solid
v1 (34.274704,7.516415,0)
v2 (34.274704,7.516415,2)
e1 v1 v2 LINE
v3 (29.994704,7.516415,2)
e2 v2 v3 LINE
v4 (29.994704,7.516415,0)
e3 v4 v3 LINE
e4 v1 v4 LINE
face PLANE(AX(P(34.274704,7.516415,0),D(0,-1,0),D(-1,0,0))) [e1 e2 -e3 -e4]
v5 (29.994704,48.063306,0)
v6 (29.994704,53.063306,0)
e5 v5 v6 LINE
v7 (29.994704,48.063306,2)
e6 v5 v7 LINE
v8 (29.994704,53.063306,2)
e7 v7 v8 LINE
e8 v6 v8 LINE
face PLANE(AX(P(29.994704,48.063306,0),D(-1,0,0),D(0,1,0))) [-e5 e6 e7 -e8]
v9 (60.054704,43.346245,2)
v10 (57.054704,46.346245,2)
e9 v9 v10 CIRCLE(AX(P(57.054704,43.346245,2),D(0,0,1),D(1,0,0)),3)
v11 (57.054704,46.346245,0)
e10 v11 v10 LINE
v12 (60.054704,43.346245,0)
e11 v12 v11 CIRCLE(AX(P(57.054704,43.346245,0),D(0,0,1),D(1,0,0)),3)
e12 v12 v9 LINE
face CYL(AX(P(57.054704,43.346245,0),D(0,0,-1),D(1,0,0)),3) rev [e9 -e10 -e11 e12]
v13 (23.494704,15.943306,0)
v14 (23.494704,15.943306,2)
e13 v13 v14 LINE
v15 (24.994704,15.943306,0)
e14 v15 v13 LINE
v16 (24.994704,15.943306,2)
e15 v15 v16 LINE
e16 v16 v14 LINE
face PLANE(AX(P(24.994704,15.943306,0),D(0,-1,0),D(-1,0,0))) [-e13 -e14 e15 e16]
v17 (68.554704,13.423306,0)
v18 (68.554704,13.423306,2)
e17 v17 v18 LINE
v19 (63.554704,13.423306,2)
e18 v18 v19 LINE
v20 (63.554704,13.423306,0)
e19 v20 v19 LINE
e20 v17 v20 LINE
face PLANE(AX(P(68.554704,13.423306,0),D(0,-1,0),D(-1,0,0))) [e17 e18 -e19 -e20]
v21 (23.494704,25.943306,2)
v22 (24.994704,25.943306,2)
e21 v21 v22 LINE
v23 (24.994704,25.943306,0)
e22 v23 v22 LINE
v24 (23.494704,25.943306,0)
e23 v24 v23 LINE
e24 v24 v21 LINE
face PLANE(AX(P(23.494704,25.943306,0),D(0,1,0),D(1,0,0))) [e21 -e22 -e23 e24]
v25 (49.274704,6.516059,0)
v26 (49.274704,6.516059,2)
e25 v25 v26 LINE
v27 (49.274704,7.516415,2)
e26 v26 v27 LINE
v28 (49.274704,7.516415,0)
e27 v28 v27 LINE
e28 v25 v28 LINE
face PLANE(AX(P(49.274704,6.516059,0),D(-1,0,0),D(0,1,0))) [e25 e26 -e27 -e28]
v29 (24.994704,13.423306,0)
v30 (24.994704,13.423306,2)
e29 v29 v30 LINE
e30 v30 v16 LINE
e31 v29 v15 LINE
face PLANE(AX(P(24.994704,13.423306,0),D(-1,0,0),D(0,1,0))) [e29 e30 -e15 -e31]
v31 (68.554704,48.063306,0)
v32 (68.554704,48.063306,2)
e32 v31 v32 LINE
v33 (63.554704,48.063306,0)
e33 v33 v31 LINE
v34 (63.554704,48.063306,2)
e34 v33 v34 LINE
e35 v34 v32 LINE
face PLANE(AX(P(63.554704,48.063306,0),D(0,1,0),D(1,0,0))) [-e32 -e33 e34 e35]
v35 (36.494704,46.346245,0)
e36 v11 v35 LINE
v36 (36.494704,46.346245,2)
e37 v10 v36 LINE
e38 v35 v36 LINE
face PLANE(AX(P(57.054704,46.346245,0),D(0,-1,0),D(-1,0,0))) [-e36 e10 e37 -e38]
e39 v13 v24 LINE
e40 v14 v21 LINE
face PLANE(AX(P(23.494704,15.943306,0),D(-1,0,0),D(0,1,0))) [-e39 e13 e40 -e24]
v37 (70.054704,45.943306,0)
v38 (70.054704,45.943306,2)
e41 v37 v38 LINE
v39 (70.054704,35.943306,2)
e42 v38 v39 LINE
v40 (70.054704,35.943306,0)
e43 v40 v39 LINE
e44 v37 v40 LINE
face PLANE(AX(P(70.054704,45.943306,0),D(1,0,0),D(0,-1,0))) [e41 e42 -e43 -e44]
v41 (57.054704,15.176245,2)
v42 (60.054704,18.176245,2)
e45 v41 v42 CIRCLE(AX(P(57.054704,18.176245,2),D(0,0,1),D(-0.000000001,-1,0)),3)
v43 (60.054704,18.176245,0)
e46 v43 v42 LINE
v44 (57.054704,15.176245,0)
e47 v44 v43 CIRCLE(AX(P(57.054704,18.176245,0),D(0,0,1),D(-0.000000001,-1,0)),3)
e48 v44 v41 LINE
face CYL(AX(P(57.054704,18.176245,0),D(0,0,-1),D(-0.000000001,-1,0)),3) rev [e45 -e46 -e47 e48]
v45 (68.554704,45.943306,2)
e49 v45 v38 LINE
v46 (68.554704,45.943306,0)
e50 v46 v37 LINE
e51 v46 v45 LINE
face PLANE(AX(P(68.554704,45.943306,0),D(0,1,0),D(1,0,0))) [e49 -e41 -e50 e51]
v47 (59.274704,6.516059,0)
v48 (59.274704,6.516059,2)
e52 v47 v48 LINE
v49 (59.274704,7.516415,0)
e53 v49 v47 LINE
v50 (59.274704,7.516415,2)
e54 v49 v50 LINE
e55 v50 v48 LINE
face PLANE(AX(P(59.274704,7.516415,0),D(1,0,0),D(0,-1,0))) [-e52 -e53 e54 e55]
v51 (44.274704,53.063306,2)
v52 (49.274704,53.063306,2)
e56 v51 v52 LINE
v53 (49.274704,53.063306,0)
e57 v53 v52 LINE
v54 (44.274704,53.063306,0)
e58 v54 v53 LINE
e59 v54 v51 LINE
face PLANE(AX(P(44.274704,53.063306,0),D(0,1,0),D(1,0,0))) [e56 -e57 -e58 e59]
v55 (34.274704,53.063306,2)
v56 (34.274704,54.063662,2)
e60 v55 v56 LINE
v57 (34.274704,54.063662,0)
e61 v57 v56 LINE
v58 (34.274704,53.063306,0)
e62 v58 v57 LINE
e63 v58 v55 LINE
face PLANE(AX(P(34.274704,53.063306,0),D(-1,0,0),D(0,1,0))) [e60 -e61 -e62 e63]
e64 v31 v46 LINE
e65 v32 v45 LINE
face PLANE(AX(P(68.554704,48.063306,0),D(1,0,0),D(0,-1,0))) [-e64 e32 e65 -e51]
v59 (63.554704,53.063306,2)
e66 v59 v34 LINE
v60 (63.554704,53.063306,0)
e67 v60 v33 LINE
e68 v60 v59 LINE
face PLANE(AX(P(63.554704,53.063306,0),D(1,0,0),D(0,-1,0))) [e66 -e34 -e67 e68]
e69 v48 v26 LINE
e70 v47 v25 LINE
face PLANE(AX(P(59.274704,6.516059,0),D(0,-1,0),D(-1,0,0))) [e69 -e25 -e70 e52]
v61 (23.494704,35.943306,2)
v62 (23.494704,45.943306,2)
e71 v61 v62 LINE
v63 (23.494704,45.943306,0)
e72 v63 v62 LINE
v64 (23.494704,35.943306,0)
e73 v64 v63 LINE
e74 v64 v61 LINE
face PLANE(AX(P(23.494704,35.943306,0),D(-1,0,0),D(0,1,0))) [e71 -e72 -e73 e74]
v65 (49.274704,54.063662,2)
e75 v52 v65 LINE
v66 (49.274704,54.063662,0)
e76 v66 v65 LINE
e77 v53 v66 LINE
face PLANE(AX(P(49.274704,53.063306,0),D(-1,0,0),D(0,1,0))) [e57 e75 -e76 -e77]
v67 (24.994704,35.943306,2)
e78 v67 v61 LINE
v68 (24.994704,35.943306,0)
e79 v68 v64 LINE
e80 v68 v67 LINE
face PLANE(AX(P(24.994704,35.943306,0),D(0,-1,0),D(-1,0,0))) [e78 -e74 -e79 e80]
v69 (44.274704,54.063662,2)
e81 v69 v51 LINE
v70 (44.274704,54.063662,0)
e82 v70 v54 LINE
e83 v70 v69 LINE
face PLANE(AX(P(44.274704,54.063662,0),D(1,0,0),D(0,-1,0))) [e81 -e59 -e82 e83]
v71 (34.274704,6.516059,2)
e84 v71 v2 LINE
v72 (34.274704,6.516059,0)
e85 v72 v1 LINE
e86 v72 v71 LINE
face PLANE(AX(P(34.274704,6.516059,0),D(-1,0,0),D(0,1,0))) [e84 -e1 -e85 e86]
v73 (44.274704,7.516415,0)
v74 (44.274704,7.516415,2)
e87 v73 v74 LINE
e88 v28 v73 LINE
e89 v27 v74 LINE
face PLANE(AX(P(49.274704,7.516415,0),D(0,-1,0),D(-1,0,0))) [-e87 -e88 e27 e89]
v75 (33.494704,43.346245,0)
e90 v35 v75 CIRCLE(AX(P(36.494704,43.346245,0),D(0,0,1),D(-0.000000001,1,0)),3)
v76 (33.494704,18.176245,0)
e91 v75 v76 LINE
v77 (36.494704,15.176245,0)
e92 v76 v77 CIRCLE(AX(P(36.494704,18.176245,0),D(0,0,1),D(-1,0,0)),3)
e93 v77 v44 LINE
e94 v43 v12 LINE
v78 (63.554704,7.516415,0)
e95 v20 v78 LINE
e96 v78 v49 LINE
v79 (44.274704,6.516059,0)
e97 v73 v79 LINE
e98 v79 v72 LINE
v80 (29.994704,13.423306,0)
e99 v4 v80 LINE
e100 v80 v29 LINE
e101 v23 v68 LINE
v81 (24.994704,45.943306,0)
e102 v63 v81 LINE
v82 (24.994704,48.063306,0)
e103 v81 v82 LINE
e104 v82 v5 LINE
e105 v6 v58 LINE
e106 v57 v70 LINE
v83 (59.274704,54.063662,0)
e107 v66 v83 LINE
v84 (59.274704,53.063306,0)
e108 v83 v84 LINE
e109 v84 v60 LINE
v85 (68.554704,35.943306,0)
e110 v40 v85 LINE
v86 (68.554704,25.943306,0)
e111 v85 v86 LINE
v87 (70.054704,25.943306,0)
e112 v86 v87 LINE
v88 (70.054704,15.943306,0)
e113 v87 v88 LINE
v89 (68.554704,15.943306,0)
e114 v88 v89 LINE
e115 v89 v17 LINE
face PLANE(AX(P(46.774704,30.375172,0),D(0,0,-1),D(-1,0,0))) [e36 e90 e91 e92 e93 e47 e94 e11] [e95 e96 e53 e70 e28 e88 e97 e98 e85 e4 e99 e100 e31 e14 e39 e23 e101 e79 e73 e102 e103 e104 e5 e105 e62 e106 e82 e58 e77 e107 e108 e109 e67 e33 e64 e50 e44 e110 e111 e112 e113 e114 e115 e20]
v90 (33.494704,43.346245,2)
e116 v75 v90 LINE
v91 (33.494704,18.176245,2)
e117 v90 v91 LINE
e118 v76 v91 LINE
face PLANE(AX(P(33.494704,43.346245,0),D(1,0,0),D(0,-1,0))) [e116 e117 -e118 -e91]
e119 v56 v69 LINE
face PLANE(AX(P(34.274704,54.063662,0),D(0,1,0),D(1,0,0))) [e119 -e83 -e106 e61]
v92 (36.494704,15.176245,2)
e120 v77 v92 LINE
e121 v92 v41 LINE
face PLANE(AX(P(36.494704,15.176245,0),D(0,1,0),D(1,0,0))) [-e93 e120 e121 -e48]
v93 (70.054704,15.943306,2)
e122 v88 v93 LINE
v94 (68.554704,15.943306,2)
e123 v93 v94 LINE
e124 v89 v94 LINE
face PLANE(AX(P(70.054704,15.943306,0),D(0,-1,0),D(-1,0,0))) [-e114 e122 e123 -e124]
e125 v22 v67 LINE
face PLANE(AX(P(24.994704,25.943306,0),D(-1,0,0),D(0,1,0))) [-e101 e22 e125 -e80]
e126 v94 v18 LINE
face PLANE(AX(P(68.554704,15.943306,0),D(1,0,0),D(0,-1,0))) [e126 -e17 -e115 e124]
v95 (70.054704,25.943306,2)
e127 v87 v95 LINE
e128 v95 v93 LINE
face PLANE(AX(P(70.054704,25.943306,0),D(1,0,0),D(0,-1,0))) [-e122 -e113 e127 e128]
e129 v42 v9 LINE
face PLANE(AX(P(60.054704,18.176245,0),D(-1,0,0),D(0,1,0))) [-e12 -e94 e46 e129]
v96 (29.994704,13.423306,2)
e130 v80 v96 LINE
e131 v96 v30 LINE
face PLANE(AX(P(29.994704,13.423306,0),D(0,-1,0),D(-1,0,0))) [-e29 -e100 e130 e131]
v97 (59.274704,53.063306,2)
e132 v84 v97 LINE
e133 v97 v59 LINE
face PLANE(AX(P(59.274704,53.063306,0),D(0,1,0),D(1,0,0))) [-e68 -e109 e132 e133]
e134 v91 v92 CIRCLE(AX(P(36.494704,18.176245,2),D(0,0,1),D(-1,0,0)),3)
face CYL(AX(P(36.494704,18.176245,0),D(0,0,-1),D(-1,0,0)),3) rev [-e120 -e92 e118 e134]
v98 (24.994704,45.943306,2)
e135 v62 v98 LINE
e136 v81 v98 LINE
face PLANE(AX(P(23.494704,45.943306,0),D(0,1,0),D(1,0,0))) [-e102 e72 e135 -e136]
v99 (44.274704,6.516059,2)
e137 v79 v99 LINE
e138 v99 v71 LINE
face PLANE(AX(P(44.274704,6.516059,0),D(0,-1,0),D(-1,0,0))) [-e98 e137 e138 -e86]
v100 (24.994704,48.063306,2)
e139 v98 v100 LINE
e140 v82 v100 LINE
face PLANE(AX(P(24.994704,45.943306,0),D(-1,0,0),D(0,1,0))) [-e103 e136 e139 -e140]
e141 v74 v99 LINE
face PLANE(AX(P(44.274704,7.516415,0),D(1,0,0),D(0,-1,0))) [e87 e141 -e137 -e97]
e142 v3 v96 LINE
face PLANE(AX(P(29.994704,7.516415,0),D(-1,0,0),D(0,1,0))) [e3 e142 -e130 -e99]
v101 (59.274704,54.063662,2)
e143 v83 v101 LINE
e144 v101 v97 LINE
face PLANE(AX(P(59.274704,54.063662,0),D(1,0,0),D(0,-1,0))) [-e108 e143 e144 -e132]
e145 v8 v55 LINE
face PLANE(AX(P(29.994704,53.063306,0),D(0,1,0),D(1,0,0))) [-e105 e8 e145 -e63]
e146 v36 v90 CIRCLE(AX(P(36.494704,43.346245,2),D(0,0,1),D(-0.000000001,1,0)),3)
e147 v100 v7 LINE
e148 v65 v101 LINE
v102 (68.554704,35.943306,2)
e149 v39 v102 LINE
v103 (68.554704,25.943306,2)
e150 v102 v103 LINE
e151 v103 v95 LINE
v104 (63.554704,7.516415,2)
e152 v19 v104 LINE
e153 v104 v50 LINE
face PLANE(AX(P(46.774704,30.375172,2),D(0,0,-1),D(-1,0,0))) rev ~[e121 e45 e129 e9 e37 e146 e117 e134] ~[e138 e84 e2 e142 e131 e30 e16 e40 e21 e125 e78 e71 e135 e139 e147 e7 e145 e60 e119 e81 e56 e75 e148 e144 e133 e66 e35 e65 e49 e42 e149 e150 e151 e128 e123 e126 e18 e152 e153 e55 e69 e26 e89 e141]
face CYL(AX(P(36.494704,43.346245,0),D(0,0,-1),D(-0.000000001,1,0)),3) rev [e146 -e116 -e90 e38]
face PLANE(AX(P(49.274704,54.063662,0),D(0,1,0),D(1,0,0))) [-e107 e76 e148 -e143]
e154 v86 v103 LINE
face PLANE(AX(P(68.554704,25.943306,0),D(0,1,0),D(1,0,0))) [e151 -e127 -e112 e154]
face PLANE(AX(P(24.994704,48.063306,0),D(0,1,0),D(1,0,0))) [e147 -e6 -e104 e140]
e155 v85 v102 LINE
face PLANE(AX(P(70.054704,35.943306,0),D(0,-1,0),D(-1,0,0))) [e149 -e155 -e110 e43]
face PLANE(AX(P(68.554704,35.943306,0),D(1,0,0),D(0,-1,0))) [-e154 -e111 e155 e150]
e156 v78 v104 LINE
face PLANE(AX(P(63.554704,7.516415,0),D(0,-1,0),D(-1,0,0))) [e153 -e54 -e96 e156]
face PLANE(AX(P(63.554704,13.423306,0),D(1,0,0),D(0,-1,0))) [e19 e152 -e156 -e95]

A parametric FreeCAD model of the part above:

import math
import FreeCAD as App
import Part
import Sketcher

V = App.Vector
Q = App.Units.Quantity

doc = App.newDocument("Part")
body = doc.addObject("PartDesign::Body", "Body")

# Sketch on XY plane
sketch1 = doc.addObject("Sketcher::SketchObject", "Sketch")
body.addObject(sketch1)
sketch1.AttachmentSupport = (doc.XY_Plane, [""])
sketch1.MapMode = "FlatFace"
sketch1.addGeometry([
    Part.LineSegment(V(34.274704, 53.063306, 0), V(29.994704, 53.063306, 0)),  # 0
    Part.LineSegment(V(29.994704, 53.063306, 0), V(29.994704, 48.063306, 0)),  # 1
    Part.LineSegment(V(29.994704, 48.063306, 0), V(24.994704, 48.063306, 0)),  # 2
    Part.LineSegment(V(24.994704, 48.063306, 0), V(24.994704, 45.943306, 0)),  # 3
    Part.LineSegment(V(24.994704, 45.943306, 0), V(23.494704, 45.943306, 0)),  # 4
    Part.LineSegment(V(23.494704, 45.943306, 0), V(23.494704, 35.943306, 0)),  # 5
    Part.LineSegment(V(23.494704, 35.943306, 0), V(24.994704, 35.943306, 0)),  # 6
    Part.LineSegment(V(24.994704, 35.943306, 0), V(24.994704, 25.943306, 0)),  # 7
    Part.LineSegment(V(24.994704, 25.943306, 0), V(23.494704, 25.943306, 0)),  # 8
    Part.LineSegment(V(23.494704, 25.943306, 0), V(23.494704, 15.943306, 0)),  # 9
    Part.LineSegment(V(23.494704, 15.943306, 0), V(24.994704, 15.943306, 0)),  # 10
    Part.LineSegment(V(24.994704, 15.943306, 0), V(24.994704, 13.423306, 0)),  # 11
    Part.LineSegment(V(24.994704, 13.423306, 0), V(29.994704, 13.423306, 0)),  # 12
    Part.LineSegment(V(29.994704, 13.423306, 0), V(29.994704, 7.516415, 0)),  # 13
    Part.LineSegment(V(29.994704, 7.516415, 0), V(34.274704, 7.516415, 0)),  # 14
    Part.LineSegment(V(34.274704, 7.516415, 0), V(34.274704, 6.516059, 0)),  # 15
    Part.LineSegment(V(34.274704, 6.516059, 0), V(44.274704, 6.516059, 0)),  # 16
    Part.LineSegment(V(44.274704, 6.516059, 0), V(44.274704, 7.516415, 0)),  # 17
    Part.LineSegment(V(44.274704, 7.516415, 0), V(49.274704, 7.516415, 0)),  # 18
    Part.LineSegment(V(49.274704, 7.516415, 0), V(49.274704, 6.516059, 0)),  # 19
    Part.LineSegment(V(49.274704, 6.516059, 0), V(59.274704, 6.516059, 0)),  # 20
    Part.LineSegment(V(59.274704, 6.516059, 0), V(59.274704, 7.516415, 0)),  # 21
    Part.LineSegment(V(59.274704, 7.516415, 0), V(63.554704, 7.516415, 0)),  # 22
    Part.LineSegment(V(63.554704, 7.516415, 0), V(63.554704, 13.423306, 0)),  # 23
    Part.LineSegment(V(63.554704, 13.423306, 0), V(68.554704, 13.423306, 0)),  # 24
    Part.LineSegment(V(68.554704, 13.423306, 0), V(68.554704, 15.943306, 0)),  # 25
    Part.LineSegment(V(68.554704, 15.943306, 0), V(70.054704, 15.943306, 0)),  # 26
    Part.LineSegment(V(70.054704, 15.943306, 0), V(70.054704, 25.943306, 0)),  # 27
    Part.LineSegment(V(70.054704, 25.943306, 0), V(68.554704, 25.943306, 0)),  # 28
    Part.LineSegment(V(68.554704, 25.943306, 0), V(68.554704, 35.943306, 0)),  # 29
    Part.LineSegment(V(68.554704, 35.943306, 0), V(70.054704, 35.943306, 0)),  # 30
    Part.LineSegment(V(70.054704, 35.943306, 0), V(70.054704, 45.943306, 0)),  # 31
    Part.LineSegment(V(70.054704, 45.943306, 0), V(68.554704, 45.943306, 0)),  # 32
    Part.LineSegment(V(68.554704, 45.943306, 0), V(68.554704, 48.063306, 0)),  # 33
    Part.LineSegment(V(68.554704, 48.063306, 0), V(63.554704, 48.063306, 0)),  # 34
    Part.LineSegment(V(63.554704, 48.063306, 0), V(63.554704, 53.063306, 0)),  # 35
    Part.LineSegment(V(63.554704, 53.063306, 0), V(59.274704, 53.063306, 0)),  # 36
    Part.LineSegment(V(59.274704, 53.063306, 0), V(59.274704, 54.063662, 0)),  # 37
    Part.LineSegment(V(59.274704, 54.063662, 0), V(49.274704, 54.063662, 0)),  # 38
    Part.LineSegment(V(49.274704, 54.063662, 0), V(49.274704, 53.063306, 0)),  # 39
    Part.LineSegment(V(49.274704, 53.063306, 0), V(44.274704, 53.063306, 0)),  # 40
    Part.LineSegment(V(44.274704, 53.063306, 0), V(44.274704, 54.063662, 0)),  # 41
    Part.LineSegment(V(44.274704, 54.063662, 0), V(34.274704, 54.063662, 0)),  # 42
    Part.LineSegment(V(34.274704, 54.063662, 0), V(34.274704, 53.063306, 0)),  # 43
    Part.ArcOfCircle(Part.Circle(V(57.054704, 43.346245, 0), V(0, 0, 1), 3), math.radians(0), math.radians(90)),  # 44
    Part.LineSegment(V(60.054704, 43.346245, 0), V(60.054704, 18.176245, 0)),  # 45
    Part.ArcOfCircle(Part.Circle(V(57.054704, 18.176245, 0), V(0, 0, 1), 3), math.radians(-90), math.radians(0)),  # 46
    Part.LineSegment(V(57.054704, 15.176245, 0), V(36.494704, 15.176245, 0)),  # 47
    Part.ArcOfCircle(Part.Circle(V(36.494704, 18.176245, 0), V(0, 0, 1), 3), math.radians(180), math.radians(270)),  # 48
    Part.LineSegment(V(33.494704, 18.176245, 0), V(33.494704, 43.346245, 0)),  # 49
    Part.ArcOfCircle(Part.Circle(V(36.494704, 43.346245, 0), V(0, 0, 1), 3), math.radians(90), math.radians(180)),  # 50
    Part.LineSegment(V(36.494704, 46.346245, 0), V(57.054704, 46.346245, 0)),  # 51
], False)
sketch1.addConstraint([
    Sketcher.Constraint("Coincident", 0, 2, 1, 1),
    Sketcher.Constraint("Coincident", 1, 2, 2, 1),
    Sketcher.Constraint("Coincident", 2, 2, 3, 1),
    Sketcher.Constraint("Coincident", 3, 2, 4, 1),
    Sketcher.Constraint("Coincident", 4, 2, 5, 1),
    Sketcher.Constraint("Coincident", 5, 2, 6, 1),
    Sketcher.Constraint("Coincident", 6, 2, 7, 1),
    Sketcher.Constraint("Coincident", 7, 2, 8, 1),
    Sketcher.Constraint("Coincident", 8, 2, 9, 1),
    Sketcher.Constraint("Coincident", 9, 2, 10, 1),
    Sketcher.Constraint("Coincident", 10, 2, 11, 1),
    Sketcher.Constraint("Coincident", 11, 2, 12, 1),
    Sketcher.Constraint("Coincident", 12, 2, 13, 1),
    Sketcher.Constraint("Coincident", 13, 2, 14, 1),
    Sketcher.Constraint("Coincident", 14, 2, 15, 1),
    Sketcher.Constraint("Coincident", 15, 2, 16, 1),
    Sketcher.Constraint("Coincident", 16, 2, 17, 1),
    Sketcher.Constraint("Coincident", 17, 2, 18, 1),
    Sketcher.Constraint("Coincident", 18, 2, 19, 1),
    Sketcher.Constraint("Coincident", 19, 2, 20, 1),
    Sketcher.Constraint("Coincident", 20, 2, 21, 1),
    Sketcher.Constraint("Coincident", 21, 2, 22, 1),
    Sketcher.Constraint("Coincident", 22, 2, 23, 1),
    Sketcher.Constraint("Coincident", 23, 2, 24, 1),
    Sketcher.Constraint("Coincident", 24, 2, 25, 1),
    Sketcher.Constraint("Coincident", 25, 2, 26, 1),
    Sketcher.Constraint("Coincident", 26, 2, 27, 1),
    Sketcher.Constraint("Coincident", 27, 2, 28, 1),
    Sketcher.Constraint("Coincident", 28, 2, 29, 1),
    Sketcher.Constraint("Coincident", 29, 2, 30, 1),
    Sketcher.Constraint("Coincident", 30, 2, 31, 1),
    Sketcher.Constraint("Coincident", 31, 2, 32, 1),
    Sketcher.Constraint("Coincident", 32, 2, 33, 1),
    Sketcher.Constraint("Coincident", 33, 2, 34, 1),
    Sketcher.Constraint("Coincident", 34, 2, 35, 1),
    Sketcher.Constraint("Coincident", 35, 2, 36, 1),
    Sketcher.Constraint("Coincident", 36, 2, 37, 1),
    Sketcher.Constraint("Coincident", 37, 2, 38, 1),
    Sketcher.Constraint("Coincident", 38, 2, 39, 1),
    Sketcher.Constraint("Coincident", 39, 2, 40, 1),
    Sketcher.Constraint("Coincident", 40, 2, 41, 1),
    Sketcher.Constraint("Coincident", 41, 2, 42, 1),
    Sketcher.Constraint("Coincident", 42, 2, 43, 1),
    Sketcher.Constraint("Coincident", 43, 2, 0, 1),
    Sketcher.Constraint("Tangent", 44, 1, 45, 1),
    Sketcher.Constraint("Tangent", 45, 2, 46, 2),
    Sketcher.Constraint("Tangent", 46, 1, 47, 1),
    Sketcher.Constraint("Tangent", 47, 2, 48, 2),
    Sketcher.Constraint("Tangent", 48, 1, 49, 1),
    Sketcher.Constraint("Tangent", 49, 2, 50, 2),
    Sketcher.Constraint("Tangent", 50, 1, 51, 1),
    Sketcher.Constraint("Tangent", 51, 2, 44, 2),
    Sketcher.Constraint("Horizontal", 0),
    Sketcher.Constraint("Vertical", 1),
    Sketcher.Constraint("Horizontal", 2),
    Sketcher.Constraint("Vertical", 3),
    Sketcher.Constraint("Horizontal", 4),
    Sketcher.Constraint("Vertical", 5),
    Sketcher.Constraint("Horizontal", 6),
    Sketcher.Constraint("Vertical", 7),
    Sketcher.Constraint("Horizontal", 8),
    Sketcher.Constraint("Vertical", 9),
    Sketcher.Constraint("Horizontal", 10),
    Sketcher.Constraint("Vertical", 11),
    Sketcher.Constraint("Horizontal", 12),
    Sketcher.Constraint("Vertical", 13),
    Sketcher.Constraint("Horizontal", 14),
    Sketcher.Constraint("Vertical", 15),
    Sketcher.Constraint("Horizontal", 16),
    Sketcher.Constraint("Vertical", 17),
    Sketcher.Constraint("Horizontal", 18),
    Sketcher.Constraint("Vertical", 19),
    Sketcher.Constraint("Horizontal", 20),
    Sketcher.Constraint("Vertical", 21),
    Sketcher.Constraint("Horizontal", 22),
    Sketcher.Constraint("Vertical", 23),
    Sketcher.Constraint("Horizontal", 24),
    Sketcher.Constraint("Vertical", 25),
    Sketcher.Constraint("Horizontal", 26),
    Sketcher.Constraint("Vertical", 27),
    Sketcher.Constraint("Horizontal", 28),
    Sketcher.Constraint("Vertical", 29),
    Sketcher.Constraint("Horizontal", 30),
    Sketcher.Constraint("Vertical", 31),
    Sketcher.Constraint("Horizontal", 32),
    Sketcher.Constraint("Vertical", 33),
    Sketcher.Constraint("Horizontal", 34),
    Sketcher.Constraint("Vertical", 35),
    Sketcher.Constraint("Horizontal", 36),
    Sketcher.Constraint("Vertical", 37),
    Sketcher.Constraint("Horizontal", 38),
    Sketcher.Constraint("Vertical", 39),
    Sketcher.Constraint("Horizontal", 40),
    Sketcher.Constraint("Vertical", 41),
    Sketcher.Constraint("Horizontal", 42),
    Sketcher.Constraint("Vertical", 43),
    Sketcher.Constraint("Vertical", 45),
    Sketcher.Constraint("Horizontal", 47),
    Sketcher.Constraint("Vertical", 49),
    Sketcher.Constraint("Horizontal", 51),
    Sketcher.Constraint("Equal", 44, 46),
    Sketcher.Constraint("Equal", 46, 48),
    Sketcher.Constraint("Equal", 48, 50),
    Sketcher.Constraint("Horizontal", 14, 2, 17, 2),
    Sketcher.Constraint("Horizontal", 16, 2, 19, 2),
    Sketcher.Constraint("Horizontal", 18, 2, 21, 2),
    Sketcher.Constraint("Horizontal", 12, 2, 23, 2),
    Sketcher.Constraint("Horizontal", 10, 2, 25, 2),
    Sketcher.Constraint("Horizontal", 8, 2, 27, 2),
    Sketcher.Constraint("Horizontal", 6, 2, 29, 2),
    Sketcher.Constraint("Horizontal", 4, 2, 31, 2),
    Sketcher.Constraint("Horizontal", 2, 2, 33, 2),
    Sketcher.Constraint("Horizontal", 0, 2, 35, 2),
    Sketcher.Constraint("Horizontal", 36, 2, 39, 2),
    Sketcher.Constraint("Horizontal", 38, 2, 41, 2),
    Sketcher.Constraint("Vertical", 3, 2, 6, 2),
    Sketcher.Constraint("Vertical", 5, 2, 8, 2),
    Sketcher.Constraint("Vertical", 7, 2, 10, 2),
    Sketcher.Constraint("Vertical", 1, 2, 12, 2),
    Sketcher.Constraint("Vertical", 25, 2, 28, 2),
    Sketcher.Constraint("Vertical", 27, 2, 30, 2),
    Sketcher.Constraint("Vertical", 29, 2, 32, 2),
    Sketcher.Constraint("Vertical", 23, 2, 34, 2),
    Sketcher.Constraint("Vertical", 21, 2, 36, 2),
    Sketcher.Constraint("Vertical", 19, 2, 38, 2),
    Sketcher.Constraint("Vertical", 17, 2, 40, 2),
    Sketcher.Constraint("Vertical", 15, 2, 42, 2),
    Sketcher.Constraint("Equal", 12, 18),
    Sketcher.Constraint("Equal", 16, 20),
    Sketcher.Constraint("Equal", 14, 22),
    Sketcher.Constraint("Equal", 18, 24),
    Sketcher.Constraint("Equal", 10, 26),
    Sketcher.Constraint("Equal", 40, 1),
    Sketcher.Constraint("Equal", 42, 5),
    Sketcher.Constraint("Equal", 5, 7),
    Sketcher.Constraint("Equal", 7, 9),
    Sketcher.Constraint("Equal", 21, 37),
    Sketcher.Constraint("Radius", 44, Q("3 mm")),
    Sketcher.Constraint("DistanceX", 2, 2, 2, 1, Q("5 mm")),
    Sketcher.Constraint("DistanceX", 16, 1, 16, 2, Q("10 mm")),
    Sketcher.Constraint("DistanceX", 4, 2, 4, 1, Q("1.5 mm")),
    Sketcher.Constraint("DistanceX", 4, 2, 50, 3, Q("13 mm")),
    Sketcher.Constraint("DistanceX", 46, 3, 26, 2, Q("13 mm")),
    Sketcher.Constraint("DistanceX", 0, 2, 0, 1, Q("4.28 mm")),
    Sketcher.Constraint("DistanceY", 3, 2, 3, 1, Q("2.12 mm")),
    Sketcher.Constraint("DistanceY", 11, 2, 11, 1, Q("2.52 mm")),
    Sketcher.Constraint("DistanceY", 45, 2, 45, 1, Q("25.17 mm")),
    Sketcher.Constraint("DistanceY", 13, 2, 13, 1, Q("5.906891 mm")),
    Sketcher.Constraint("DistanceY", 15, 2, 15, 1, Q("1.000356 mm")),
    Sketcher.Constraint("DistanceY", -1, 1, 15, 2, Q("6.516059 mm")),
    Sketcher.Constraint("DistanceY", 50, 3, 0, 2, Q("9.717061 mm")),
    Sketcher.Constraint("DistanceX", -1, 1, 44, 3, Q("57.054704 mm")),
])
pad1 = doc.addObject("PartDesign::Pad", "Pad")
body.addObject(pad1)
pad1.Profile = sketch1
pad1.Length = 2

doc.recompute()
